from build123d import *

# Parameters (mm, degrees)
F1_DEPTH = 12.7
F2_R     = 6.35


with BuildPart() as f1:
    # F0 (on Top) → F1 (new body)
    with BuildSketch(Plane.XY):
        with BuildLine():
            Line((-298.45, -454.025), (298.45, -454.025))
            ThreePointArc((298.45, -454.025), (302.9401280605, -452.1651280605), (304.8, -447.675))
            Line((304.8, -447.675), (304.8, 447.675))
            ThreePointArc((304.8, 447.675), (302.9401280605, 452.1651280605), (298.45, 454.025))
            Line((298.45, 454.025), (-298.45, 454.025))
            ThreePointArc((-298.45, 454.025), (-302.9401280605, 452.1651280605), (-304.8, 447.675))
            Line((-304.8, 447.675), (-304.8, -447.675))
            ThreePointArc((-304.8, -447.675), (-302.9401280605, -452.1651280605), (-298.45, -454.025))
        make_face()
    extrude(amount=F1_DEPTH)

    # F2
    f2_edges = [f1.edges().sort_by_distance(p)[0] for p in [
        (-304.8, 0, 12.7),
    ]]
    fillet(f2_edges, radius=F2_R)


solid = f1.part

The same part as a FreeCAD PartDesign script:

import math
import FreeCAD as App
import Part
import Sketcher
Q = App.Units.Quantity


def edges_at(feature, points):
    """Names of the edges that pass closest to the given points."""
    edges = feature.Shape.Edges
    near = lambda p: min(range(len(edges)), key=lambda i: edges[i].distToShape(Part.Vertex(*p))[0])
    return sorted({f"Edge{near(p) + 1}" for p in points})

doc = App.newDocument("Part")
params = doc.addObject("Spreadsheet::Sheet", "Params")
for row, (alias, value) in enumerate([
    ("sketch1_radius", "0.25 in"),
    ("sketch1_width", "23.5 in"),
    ("sketch1_height", "35.25 in"),
    ("pad1_length", "0.5 in"),
    ("fillet_radius", "0.25 in"),
], start=1):
    params.set(f"A{row}", alias)
    params.set(f"B{row}", "=" + value)
    params.setAlias(f"B{row}", alias)

body = doc.addObject("PartDesign::Body", "Body")

# Sketch on XY plane
sketch1 = body.newObject("Sketcher::SketchObject", "Sketch")
sketch1.AttachmentSupport = (doc.getObject("XY_Plane"), [""])
sketch1.MapMode = "FlatFace"
sketch1.addGeometry([
    Part.LineSegment(App.Vector(-298, -454, 0), App.Vector(298, -454, 0)),  # 0
    Part.ArcOfCircle(Part.Circle(App.Vector(298, -448, 0), App.Vector(0, 0, 1), 6), math.radians(-90), math.radians(0)),  # 1
    Part.LineSegment(App.Vector(305, -448, 0), App.Vector(305, 448, 0)),  # 2
    Part.ArcOfCircle(Part.Circle(App.Vector(298, 448, 0), App.Vector(0, 0, 1), 6), math.radians(0), math.radians(90)),  # 3
    Part.LineSegment(App.Vector(298, 454, 0), App.Vector(-298, 454, 0)),  # 4
    Part.ArcOfCircle(Part.Circle(App.Vector(-298, 448, 0), App.Vector(0, 0, 1), 6), math.radians(90), math.radians(180)),  # 5
    Part.LineSegment(App.Vector(-305, 448, 0), App.Vector(-305, -448, 0)),  # 6
    Part.ArcOfCircle(Part.Circle(App.Vector(-298, -448, 0), App.Vector(0, 0, 1), 6), math.radians(180), math.radians(270)),  # 7
], False)
sketch1.addConstraint([
    Sketcher.Constraint("Tangent", 0, 2, 1, 1),
    Sketcher.Constraint("Tangent", 1, 2, 2, 1),
    Sketcher.Constraint("Tangent", 2, 2, 3, 1),
    Sketcher.Constraint("Tangent", 3, 2, 4, 1),
    Sketcher.Constraint("Tangent", 4, 2, 5, 1),
    Sketcher.Constraint("Tangent", 5, 2, 6, 1),
    Sketcher.Constraint("Tangent", 6, 2, 7, 1),
    Sketcher.Constraint("Tangent", 7, 2, 0, 1),
    Sketcher.Constraint("Horizontal", 0),
    Sketcher.Constraint("Vertical", 2),
    Sketcher.Constraint("Horizontal", 4),
    Sketcher.Constraint("Vertical", 6),
    Sketcher.Constraint("Equal", 1, 3),
    Sketcher.Constraint("Equal", 3, 5),
    Sketcher.Constraint("Equal", 5, 7),
    Sketcher.Constraint("Symmetric", 1, 3, 5, 3, -1, 1),
    Sketcher.Constraint("Radius", 1, Q("0.25 in")),
    Sketcher.Constraint("DistanceX", 0, 1, 0, 2, Q("23.5 in")),
    Sketcher.Constraint("DistanceY", 2, 1, 2, 2, Q("35.25 in")),
])
sketch1.setExpression("Constraints[16]", "Params.sketch1_radius")
sketch1.setExpression("Constraints[17]", "Params.sketch1_width")
sketch1.setExpression("Constraints[18]", "Params.sketch1_height")
pad1 = body.newObject("PartDesign::Pad", "Pad")
pad1.Profile = sketch1
pad1.setExpression("Length", "Params.pad1_length")
doc.recompute()

fillet = body.newObject("PartDesign::Fillet", "Fillet")
fillet.Base = (pad1, edges_at(pad1, [(-304.8, 0, 12.7)]))
fillet.setExpression("Radius", "Params.fillet_radius")

doc.recompute()
